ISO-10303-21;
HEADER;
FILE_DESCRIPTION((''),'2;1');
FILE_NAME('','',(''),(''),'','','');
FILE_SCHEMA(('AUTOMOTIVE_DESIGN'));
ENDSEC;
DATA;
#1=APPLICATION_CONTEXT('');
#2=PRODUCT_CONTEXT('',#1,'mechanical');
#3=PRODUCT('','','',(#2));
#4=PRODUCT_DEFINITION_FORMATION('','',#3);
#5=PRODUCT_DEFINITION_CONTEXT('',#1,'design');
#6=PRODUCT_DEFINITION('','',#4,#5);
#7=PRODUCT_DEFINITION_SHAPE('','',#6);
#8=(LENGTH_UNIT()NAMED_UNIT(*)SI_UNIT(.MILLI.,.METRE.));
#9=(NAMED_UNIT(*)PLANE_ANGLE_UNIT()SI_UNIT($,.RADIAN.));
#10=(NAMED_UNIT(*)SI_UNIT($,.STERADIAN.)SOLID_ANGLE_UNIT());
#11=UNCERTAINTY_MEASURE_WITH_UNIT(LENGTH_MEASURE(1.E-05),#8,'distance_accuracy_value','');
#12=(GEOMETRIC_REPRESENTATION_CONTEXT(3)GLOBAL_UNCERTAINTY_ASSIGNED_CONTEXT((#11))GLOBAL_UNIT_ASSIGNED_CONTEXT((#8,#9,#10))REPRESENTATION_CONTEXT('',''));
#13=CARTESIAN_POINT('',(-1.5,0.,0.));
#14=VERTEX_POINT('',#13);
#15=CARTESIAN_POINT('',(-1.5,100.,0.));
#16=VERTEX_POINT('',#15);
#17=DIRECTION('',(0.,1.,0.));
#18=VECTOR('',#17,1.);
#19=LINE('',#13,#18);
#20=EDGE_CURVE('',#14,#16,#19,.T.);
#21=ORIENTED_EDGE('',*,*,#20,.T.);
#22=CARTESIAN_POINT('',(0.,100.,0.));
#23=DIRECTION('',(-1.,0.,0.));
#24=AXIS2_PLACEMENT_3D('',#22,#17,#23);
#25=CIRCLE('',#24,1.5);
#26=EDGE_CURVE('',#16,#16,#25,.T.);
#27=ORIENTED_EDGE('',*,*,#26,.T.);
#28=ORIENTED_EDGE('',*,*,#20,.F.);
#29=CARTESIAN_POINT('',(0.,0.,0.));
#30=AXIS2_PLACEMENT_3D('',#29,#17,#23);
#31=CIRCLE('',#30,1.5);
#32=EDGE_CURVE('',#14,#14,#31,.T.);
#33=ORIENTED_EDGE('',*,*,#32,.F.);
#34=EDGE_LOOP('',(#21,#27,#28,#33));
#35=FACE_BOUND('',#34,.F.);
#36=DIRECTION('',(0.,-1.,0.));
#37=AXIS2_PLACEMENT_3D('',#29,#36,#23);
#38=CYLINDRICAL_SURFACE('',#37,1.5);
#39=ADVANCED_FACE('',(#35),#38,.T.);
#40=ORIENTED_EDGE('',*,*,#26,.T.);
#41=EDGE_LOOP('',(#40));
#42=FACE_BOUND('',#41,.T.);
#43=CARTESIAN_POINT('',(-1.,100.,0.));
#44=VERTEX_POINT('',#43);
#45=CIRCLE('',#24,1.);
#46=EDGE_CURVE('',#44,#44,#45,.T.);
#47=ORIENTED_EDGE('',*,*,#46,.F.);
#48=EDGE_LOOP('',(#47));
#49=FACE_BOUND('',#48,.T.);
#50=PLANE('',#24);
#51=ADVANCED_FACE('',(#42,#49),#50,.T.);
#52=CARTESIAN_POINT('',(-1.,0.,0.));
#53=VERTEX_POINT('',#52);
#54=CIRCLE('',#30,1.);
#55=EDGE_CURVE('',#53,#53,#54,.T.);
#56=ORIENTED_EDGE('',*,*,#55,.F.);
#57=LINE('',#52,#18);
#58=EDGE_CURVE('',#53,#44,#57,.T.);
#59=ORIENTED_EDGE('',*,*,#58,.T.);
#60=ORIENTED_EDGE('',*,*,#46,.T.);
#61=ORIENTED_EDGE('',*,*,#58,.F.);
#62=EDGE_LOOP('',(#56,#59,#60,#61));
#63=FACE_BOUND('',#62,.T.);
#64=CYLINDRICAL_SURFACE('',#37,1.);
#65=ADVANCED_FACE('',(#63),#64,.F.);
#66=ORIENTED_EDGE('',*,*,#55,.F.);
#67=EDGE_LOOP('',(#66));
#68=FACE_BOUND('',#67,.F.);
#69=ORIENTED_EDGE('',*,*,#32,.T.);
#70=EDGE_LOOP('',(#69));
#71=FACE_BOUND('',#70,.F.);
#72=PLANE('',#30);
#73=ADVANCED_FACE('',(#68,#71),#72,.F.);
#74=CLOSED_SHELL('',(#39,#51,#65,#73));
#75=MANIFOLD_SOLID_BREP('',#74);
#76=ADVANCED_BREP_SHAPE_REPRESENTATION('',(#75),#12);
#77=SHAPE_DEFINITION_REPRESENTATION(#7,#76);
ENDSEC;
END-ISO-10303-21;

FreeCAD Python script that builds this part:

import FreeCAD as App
import Part
import Sketcher

V = App.Vector
Q = App.Units.Quantity

doc = App.newDocument("Part")
body = doc.addObject("PartDesign::Body", "Body")

# Sketch on XZ plane
sketch1 = body.newObject("Sketcher::SketchObject", "Sketch")
sketch1.AttachmentSupport = (doc.getObject("XZ_Plane"), [""])
sketch1.MapMode = "FlatFace"
sketch1.addGeometry(Part.Circle(V(0, 0, 0), V(0, 0, 1), 1.5), False)
sketch1.addGeometry(Part.Circle(V(0, 0, 0), V(0, 0, 1), 1), False)
sketch1.addConstraint(Sketcher.Constraint("Coincident", 0, 3, -1, 1))
sketch1.addConstraint(Sketcher.Constraint("Coincident", 1, 3, -1, 1))
sketch1.addConstraint(Sketcher.Constraint("Diameter", 0, Q("3 mm")))
sketch1.addConstraint(Sketcher.Constraint("Diameter", 1, Q("2 mm")))
pad1 = body.newObject("PartDesign::Pad", "Pad")
pad1.Profile = sketch1
pad1.Length = 100
pad1.Reversed = True

doc.recompute()
